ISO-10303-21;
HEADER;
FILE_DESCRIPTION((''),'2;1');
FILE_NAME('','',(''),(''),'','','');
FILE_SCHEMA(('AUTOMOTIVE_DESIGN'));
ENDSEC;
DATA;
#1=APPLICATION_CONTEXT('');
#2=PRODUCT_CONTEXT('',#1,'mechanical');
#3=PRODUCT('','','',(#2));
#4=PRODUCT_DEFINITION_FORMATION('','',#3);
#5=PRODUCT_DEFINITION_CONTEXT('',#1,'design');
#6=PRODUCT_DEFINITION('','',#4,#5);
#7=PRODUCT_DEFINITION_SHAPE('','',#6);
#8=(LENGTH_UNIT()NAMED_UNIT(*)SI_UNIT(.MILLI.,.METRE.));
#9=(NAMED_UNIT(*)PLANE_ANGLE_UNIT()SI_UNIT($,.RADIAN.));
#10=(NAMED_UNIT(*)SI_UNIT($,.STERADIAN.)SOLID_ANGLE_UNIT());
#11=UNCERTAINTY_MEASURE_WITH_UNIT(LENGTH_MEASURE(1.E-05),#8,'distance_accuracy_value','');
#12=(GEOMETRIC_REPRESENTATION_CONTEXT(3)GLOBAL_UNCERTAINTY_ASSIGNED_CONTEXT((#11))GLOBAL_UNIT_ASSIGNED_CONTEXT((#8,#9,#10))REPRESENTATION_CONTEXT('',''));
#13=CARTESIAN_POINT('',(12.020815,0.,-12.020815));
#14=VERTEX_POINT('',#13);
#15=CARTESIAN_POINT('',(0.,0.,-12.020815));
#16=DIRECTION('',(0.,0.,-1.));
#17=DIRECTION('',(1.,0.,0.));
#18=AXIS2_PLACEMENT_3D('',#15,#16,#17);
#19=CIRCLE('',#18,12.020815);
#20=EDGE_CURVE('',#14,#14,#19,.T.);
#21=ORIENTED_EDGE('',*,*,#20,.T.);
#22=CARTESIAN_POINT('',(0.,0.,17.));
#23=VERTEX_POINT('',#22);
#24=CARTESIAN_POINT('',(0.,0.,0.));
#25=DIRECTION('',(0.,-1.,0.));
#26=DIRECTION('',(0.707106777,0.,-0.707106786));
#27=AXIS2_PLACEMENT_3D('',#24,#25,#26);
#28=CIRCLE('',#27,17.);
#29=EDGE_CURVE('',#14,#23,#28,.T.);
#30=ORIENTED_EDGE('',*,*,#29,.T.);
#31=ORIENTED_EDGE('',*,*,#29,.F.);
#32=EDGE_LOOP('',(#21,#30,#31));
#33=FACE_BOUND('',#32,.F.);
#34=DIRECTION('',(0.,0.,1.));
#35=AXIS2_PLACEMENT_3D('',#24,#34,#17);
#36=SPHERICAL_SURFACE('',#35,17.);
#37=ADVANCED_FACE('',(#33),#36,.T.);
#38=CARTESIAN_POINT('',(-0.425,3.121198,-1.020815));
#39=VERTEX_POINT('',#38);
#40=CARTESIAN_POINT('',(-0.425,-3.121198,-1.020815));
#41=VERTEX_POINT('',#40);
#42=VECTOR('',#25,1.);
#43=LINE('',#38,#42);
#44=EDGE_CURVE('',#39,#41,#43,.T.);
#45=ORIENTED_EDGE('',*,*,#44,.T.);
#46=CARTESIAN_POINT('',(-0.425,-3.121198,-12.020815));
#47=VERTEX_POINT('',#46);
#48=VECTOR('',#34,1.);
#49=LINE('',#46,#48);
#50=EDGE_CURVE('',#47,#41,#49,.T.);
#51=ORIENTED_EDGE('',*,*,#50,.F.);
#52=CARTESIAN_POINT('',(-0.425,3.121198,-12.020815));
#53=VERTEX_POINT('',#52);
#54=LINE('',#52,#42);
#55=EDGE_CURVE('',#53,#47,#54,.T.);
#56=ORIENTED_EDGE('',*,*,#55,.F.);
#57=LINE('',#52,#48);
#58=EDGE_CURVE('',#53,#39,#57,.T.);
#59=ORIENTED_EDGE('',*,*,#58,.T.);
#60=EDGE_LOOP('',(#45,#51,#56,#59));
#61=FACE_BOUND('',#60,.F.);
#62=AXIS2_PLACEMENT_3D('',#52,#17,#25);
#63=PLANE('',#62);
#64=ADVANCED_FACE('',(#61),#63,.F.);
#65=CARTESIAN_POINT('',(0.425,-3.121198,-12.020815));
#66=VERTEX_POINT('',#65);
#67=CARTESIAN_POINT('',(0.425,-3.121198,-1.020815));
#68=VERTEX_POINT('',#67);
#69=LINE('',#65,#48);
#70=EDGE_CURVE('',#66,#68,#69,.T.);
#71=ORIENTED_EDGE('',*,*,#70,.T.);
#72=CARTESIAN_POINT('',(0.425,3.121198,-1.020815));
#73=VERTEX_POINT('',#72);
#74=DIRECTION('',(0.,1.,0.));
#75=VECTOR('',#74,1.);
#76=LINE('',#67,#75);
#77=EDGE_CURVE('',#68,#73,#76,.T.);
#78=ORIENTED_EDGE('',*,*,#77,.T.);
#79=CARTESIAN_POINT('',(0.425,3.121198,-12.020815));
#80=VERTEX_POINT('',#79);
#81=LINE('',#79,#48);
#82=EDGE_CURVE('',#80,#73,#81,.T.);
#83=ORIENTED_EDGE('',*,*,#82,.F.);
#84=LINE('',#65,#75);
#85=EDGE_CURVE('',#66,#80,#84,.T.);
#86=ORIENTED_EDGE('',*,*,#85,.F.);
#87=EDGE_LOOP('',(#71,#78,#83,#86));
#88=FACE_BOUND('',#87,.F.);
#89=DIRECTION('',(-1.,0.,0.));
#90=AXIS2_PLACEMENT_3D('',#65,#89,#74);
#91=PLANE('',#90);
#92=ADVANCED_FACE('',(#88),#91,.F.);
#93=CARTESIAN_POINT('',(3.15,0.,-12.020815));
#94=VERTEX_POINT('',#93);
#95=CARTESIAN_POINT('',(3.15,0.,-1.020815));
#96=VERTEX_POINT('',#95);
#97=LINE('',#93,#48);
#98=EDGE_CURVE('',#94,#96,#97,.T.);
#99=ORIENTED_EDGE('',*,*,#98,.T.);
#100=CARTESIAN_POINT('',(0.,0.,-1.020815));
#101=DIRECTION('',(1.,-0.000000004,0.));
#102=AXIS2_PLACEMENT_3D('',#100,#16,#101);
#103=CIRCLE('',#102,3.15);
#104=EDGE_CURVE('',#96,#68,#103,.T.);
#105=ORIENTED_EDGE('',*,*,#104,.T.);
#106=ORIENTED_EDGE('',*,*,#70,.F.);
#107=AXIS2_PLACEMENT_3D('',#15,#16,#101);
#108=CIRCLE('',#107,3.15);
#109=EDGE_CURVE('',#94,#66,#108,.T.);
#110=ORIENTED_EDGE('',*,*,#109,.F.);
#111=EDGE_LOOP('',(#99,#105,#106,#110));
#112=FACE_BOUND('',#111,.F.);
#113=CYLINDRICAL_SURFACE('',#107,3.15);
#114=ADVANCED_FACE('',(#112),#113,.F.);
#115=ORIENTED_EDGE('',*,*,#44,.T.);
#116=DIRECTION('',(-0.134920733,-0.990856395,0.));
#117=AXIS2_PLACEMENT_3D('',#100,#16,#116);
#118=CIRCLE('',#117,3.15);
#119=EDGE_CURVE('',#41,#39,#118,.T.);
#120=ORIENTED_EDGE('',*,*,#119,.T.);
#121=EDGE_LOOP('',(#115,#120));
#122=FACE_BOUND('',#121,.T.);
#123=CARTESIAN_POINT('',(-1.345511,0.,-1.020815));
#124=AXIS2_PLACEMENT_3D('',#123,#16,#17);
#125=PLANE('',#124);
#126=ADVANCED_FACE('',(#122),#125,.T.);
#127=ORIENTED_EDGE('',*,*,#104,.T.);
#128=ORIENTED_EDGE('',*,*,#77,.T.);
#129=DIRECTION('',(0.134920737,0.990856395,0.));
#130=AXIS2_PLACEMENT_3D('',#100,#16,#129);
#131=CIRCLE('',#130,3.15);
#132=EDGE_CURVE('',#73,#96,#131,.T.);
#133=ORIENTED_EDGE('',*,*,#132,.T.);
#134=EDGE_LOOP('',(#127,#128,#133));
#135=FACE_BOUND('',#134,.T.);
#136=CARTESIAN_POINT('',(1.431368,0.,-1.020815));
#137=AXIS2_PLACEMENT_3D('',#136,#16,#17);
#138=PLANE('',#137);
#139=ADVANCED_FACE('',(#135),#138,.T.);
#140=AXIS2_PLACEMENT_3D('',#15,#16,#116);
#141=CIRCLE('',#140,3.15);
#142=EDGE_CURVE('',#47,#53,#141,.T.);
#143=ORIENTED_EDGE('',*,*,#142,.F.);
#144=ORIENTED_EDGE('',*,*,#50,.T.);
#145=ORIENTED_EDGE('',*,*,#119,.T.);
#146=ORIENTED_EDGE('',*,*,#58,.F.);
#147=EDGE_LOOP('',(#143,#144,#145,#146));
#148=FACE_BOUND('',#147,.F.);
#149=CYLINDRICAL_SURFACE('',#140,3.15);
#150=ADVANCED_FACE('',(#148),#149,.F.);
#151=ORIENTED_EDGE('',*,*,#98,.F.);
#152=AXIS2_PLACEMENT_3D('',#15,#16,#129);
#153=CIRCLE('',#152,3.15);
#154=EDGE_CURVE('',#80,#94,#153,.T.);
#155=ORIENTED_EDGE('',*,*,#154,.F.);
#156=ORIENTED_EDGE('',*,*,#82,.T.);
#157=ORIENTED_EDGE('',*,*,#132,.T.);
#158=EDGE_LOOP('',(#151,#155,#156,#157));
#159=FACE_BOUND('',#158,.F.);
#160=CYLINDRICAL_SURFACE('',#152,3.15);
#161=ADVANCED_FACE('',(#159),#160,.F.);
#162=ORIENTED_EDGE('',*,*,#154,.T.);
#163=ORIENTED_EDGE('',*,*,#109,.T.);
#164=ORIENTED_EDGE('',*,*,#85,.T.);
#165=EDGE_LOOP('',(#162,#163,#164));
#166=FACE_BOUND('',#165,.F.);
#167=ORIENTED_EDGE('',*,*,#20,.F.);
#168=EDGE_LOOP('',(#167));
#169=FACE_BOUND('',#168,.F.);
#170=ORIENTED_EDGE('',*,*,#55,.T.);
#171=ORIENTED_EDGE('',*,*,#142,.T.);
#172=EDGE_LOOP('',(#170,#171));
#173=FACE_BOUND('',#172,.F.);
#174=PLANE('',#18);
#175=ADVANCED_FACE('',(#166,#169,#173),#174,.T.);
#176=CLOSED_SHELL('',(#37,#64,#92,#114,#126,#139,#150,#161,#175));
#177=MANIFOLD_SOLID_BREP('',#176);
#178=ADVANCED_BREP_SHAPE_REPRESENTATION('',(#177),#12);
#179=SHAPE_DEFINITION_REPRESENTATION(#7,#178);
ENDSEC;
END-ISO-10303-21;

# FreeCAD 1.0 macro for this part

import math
import FreeCAD as App
import Part
import Sketcher

V = App.Vector

doc = App.newDocument("Part")
params = doc.addObject("Spreadsheet::Sheet", "Params")
for row, (alias, value) in enumerate([
    ("sketch1_radius", "17 mm"),
    ("revolution_angle", "360 deg"),
    ("sketch2_radius", "3.15 mm"),
    ("pocket1_length", "11 mm"),
], start=1):
    params.set(f"A{row}", alias)
    params.set(f"B{row}", "=" + value)
    params.setAlias(f"B{row}", alias)

body = doc.addObject("PartDesign::Body", "Body")

# Sketch on XZ plane
sketch1 = body.newObject("Sketcher::SketchObject", "Sketch")
sketch1.AttachmentSupport = (doc.getObject("XZ_Plane"), [""])
sketch1.MapMode = "FlatFace"
sketch1.addGeometry(Part.ArcOfCircle(Part.Circle(V(0, 0, 0), V(0, 0, 1), 17), math.radians(-45), math.radians(90)), False)
sketch1.addGeometry(Part.LineSegment(V(0, 17, 0), V(0, -12, 0)), False)
sketch1.addGeometry(Part.LineSegment(V(0, -12, 0), V(12, -12, 0)), False)
sketch1.addConstraint(Sketcher.Constraint("Coincident", 0, 2, 1, 1))
sketch1.addConstraint(Sketcher.Constraint("Coincident", 1, 2, 2, 1))
sketch1.addConstraint(Sketcher.Constraint("Coincident", 2, 2, 0, 1))
sketch1.addConstraint(Sketcher.Constraint("Vertical", 1))
sketch1.addConstraint(Sketcher.Constraint("Horizontal", 2))
sketch1.addConstraint(Sketcher.Constraint("Coincident", 0, 3, -1, 1))
sketch1.addConstraint(Sketcher.Constraint("PointOnObject", 0, 2, -2))
sketch1.addConstraint(Sketcher.Constraint("Radius", 0, 17.0))
sketch1.addConstraint(Sketcher.Constraint("DistanceX", 2, 1, 2, 2, 12.020815))
sketch1.setExpression("Constraints[7]", "Params.sketch1_radius")
revolution = body.newObject("PartDesign::Revolution", "Revolution")
revolution.Profile = sketch1
revolution.ReferenceAxis = (sketch1, ["V_Axis"])
revolution.setExpression("Angle", "Params.revolution_angle")

# Sketch on XY plane
sketch2 = body.newObject("Sketcher::SketchObject", "Sketch001")
sketch2.AttachmentSupport = (doc.getObject("XY_Plane"), [""])
sketch2.MapMode = "FlatFace"
sketch2.AttachmentOffset = App.Placement(V(0, 0, -12.020815), App.Rotation())
sketch2.addGeometry(Part.LineSegment(V(-0.4, 3.1, 0), V(-0.4, -3.1, 0)), False)
sketch2.addGeometry(Part.ArcOfCircle(Part.Circle(V(0, 0, 0), V(0, 0, 1), 3.2), math.radians(98), math.radians(262)), False)
sketch2.addGeometry(Part.ArcOfCircle(Part.Circle(V(0, 0, 0), V(0, 0, 1), 3.2), math.radians(0), math.radians(82)), False)
sketch2.addGeometry(Part.ArcOfCircle(Part.Circle(V(0, 0, 0), V(0, 0, 1), 3.2), math.radians(-82), math.radians(0)), False)
sketch2.addGeometry(Part.LineSegment(V(0.4, -3.1, 0), V(0.4, 3.1, 0)), False)
sketch2.addConstraint(Sketcher.Constraint("Coincident", 0, 1, 1, 1))
sketch2.addConstraint(Sketcher.Constraint("Coincident", 1, 2, 0, 2))
sketch2.addConstraint(Sketcher.Constraint("Tangent", 2, 1, 3, 2))
sketch2.addConstraint(Sketcher.Constraint("Coincident", 3, 1, 4, 1))
sketch2.addConstraint(Sketcher.Constraint("Coincident", 4, 2, 2, 2))
sketch2.addConstraint(Sketcher.Constraint("Vertical", 0))
sketch2.addConstraint(Sketcher.Constraint("Vertical", 4))
sketch2.addConstraint(Sketcher.Constraint("Coincident", 1, 3, -1, 1))
sketch2.addConstraint(Sketcher.Constraint("Coincident", 2, 3, -1, 1))
sketch2.addConstraint(Sketcher.Constraint("Equal", 1, 2))
sketch2.addConstraint(Sketcher.Constraint("Equal", 2, 3))
sketch2.addConstraint(Sketcher.Constraint("PointOnObject", 2, 1, -1))
sketch2.addConstraint(Sketcher.Constraint("Horizontal", 1, 2, 3, 1))
sketch2.addConstraint(Sketcher.Constraint("Radius", 1, 3.15))
sketch2.addConstraint(Sketcher.Constraint("DistanceX", 1, 2, 3, 1, 0.85))
sketch2.setExpression("Constraints[13]", "Params.sketch2_radius")
pocket1 = body.newObject("PartDesign::Pocket", "Pocket")
pocket1.Profile = sketch2
pocket1.setExpression("Length", "Params.pocket1_length")
pocket1.Reversed = True

doc.recompute()
